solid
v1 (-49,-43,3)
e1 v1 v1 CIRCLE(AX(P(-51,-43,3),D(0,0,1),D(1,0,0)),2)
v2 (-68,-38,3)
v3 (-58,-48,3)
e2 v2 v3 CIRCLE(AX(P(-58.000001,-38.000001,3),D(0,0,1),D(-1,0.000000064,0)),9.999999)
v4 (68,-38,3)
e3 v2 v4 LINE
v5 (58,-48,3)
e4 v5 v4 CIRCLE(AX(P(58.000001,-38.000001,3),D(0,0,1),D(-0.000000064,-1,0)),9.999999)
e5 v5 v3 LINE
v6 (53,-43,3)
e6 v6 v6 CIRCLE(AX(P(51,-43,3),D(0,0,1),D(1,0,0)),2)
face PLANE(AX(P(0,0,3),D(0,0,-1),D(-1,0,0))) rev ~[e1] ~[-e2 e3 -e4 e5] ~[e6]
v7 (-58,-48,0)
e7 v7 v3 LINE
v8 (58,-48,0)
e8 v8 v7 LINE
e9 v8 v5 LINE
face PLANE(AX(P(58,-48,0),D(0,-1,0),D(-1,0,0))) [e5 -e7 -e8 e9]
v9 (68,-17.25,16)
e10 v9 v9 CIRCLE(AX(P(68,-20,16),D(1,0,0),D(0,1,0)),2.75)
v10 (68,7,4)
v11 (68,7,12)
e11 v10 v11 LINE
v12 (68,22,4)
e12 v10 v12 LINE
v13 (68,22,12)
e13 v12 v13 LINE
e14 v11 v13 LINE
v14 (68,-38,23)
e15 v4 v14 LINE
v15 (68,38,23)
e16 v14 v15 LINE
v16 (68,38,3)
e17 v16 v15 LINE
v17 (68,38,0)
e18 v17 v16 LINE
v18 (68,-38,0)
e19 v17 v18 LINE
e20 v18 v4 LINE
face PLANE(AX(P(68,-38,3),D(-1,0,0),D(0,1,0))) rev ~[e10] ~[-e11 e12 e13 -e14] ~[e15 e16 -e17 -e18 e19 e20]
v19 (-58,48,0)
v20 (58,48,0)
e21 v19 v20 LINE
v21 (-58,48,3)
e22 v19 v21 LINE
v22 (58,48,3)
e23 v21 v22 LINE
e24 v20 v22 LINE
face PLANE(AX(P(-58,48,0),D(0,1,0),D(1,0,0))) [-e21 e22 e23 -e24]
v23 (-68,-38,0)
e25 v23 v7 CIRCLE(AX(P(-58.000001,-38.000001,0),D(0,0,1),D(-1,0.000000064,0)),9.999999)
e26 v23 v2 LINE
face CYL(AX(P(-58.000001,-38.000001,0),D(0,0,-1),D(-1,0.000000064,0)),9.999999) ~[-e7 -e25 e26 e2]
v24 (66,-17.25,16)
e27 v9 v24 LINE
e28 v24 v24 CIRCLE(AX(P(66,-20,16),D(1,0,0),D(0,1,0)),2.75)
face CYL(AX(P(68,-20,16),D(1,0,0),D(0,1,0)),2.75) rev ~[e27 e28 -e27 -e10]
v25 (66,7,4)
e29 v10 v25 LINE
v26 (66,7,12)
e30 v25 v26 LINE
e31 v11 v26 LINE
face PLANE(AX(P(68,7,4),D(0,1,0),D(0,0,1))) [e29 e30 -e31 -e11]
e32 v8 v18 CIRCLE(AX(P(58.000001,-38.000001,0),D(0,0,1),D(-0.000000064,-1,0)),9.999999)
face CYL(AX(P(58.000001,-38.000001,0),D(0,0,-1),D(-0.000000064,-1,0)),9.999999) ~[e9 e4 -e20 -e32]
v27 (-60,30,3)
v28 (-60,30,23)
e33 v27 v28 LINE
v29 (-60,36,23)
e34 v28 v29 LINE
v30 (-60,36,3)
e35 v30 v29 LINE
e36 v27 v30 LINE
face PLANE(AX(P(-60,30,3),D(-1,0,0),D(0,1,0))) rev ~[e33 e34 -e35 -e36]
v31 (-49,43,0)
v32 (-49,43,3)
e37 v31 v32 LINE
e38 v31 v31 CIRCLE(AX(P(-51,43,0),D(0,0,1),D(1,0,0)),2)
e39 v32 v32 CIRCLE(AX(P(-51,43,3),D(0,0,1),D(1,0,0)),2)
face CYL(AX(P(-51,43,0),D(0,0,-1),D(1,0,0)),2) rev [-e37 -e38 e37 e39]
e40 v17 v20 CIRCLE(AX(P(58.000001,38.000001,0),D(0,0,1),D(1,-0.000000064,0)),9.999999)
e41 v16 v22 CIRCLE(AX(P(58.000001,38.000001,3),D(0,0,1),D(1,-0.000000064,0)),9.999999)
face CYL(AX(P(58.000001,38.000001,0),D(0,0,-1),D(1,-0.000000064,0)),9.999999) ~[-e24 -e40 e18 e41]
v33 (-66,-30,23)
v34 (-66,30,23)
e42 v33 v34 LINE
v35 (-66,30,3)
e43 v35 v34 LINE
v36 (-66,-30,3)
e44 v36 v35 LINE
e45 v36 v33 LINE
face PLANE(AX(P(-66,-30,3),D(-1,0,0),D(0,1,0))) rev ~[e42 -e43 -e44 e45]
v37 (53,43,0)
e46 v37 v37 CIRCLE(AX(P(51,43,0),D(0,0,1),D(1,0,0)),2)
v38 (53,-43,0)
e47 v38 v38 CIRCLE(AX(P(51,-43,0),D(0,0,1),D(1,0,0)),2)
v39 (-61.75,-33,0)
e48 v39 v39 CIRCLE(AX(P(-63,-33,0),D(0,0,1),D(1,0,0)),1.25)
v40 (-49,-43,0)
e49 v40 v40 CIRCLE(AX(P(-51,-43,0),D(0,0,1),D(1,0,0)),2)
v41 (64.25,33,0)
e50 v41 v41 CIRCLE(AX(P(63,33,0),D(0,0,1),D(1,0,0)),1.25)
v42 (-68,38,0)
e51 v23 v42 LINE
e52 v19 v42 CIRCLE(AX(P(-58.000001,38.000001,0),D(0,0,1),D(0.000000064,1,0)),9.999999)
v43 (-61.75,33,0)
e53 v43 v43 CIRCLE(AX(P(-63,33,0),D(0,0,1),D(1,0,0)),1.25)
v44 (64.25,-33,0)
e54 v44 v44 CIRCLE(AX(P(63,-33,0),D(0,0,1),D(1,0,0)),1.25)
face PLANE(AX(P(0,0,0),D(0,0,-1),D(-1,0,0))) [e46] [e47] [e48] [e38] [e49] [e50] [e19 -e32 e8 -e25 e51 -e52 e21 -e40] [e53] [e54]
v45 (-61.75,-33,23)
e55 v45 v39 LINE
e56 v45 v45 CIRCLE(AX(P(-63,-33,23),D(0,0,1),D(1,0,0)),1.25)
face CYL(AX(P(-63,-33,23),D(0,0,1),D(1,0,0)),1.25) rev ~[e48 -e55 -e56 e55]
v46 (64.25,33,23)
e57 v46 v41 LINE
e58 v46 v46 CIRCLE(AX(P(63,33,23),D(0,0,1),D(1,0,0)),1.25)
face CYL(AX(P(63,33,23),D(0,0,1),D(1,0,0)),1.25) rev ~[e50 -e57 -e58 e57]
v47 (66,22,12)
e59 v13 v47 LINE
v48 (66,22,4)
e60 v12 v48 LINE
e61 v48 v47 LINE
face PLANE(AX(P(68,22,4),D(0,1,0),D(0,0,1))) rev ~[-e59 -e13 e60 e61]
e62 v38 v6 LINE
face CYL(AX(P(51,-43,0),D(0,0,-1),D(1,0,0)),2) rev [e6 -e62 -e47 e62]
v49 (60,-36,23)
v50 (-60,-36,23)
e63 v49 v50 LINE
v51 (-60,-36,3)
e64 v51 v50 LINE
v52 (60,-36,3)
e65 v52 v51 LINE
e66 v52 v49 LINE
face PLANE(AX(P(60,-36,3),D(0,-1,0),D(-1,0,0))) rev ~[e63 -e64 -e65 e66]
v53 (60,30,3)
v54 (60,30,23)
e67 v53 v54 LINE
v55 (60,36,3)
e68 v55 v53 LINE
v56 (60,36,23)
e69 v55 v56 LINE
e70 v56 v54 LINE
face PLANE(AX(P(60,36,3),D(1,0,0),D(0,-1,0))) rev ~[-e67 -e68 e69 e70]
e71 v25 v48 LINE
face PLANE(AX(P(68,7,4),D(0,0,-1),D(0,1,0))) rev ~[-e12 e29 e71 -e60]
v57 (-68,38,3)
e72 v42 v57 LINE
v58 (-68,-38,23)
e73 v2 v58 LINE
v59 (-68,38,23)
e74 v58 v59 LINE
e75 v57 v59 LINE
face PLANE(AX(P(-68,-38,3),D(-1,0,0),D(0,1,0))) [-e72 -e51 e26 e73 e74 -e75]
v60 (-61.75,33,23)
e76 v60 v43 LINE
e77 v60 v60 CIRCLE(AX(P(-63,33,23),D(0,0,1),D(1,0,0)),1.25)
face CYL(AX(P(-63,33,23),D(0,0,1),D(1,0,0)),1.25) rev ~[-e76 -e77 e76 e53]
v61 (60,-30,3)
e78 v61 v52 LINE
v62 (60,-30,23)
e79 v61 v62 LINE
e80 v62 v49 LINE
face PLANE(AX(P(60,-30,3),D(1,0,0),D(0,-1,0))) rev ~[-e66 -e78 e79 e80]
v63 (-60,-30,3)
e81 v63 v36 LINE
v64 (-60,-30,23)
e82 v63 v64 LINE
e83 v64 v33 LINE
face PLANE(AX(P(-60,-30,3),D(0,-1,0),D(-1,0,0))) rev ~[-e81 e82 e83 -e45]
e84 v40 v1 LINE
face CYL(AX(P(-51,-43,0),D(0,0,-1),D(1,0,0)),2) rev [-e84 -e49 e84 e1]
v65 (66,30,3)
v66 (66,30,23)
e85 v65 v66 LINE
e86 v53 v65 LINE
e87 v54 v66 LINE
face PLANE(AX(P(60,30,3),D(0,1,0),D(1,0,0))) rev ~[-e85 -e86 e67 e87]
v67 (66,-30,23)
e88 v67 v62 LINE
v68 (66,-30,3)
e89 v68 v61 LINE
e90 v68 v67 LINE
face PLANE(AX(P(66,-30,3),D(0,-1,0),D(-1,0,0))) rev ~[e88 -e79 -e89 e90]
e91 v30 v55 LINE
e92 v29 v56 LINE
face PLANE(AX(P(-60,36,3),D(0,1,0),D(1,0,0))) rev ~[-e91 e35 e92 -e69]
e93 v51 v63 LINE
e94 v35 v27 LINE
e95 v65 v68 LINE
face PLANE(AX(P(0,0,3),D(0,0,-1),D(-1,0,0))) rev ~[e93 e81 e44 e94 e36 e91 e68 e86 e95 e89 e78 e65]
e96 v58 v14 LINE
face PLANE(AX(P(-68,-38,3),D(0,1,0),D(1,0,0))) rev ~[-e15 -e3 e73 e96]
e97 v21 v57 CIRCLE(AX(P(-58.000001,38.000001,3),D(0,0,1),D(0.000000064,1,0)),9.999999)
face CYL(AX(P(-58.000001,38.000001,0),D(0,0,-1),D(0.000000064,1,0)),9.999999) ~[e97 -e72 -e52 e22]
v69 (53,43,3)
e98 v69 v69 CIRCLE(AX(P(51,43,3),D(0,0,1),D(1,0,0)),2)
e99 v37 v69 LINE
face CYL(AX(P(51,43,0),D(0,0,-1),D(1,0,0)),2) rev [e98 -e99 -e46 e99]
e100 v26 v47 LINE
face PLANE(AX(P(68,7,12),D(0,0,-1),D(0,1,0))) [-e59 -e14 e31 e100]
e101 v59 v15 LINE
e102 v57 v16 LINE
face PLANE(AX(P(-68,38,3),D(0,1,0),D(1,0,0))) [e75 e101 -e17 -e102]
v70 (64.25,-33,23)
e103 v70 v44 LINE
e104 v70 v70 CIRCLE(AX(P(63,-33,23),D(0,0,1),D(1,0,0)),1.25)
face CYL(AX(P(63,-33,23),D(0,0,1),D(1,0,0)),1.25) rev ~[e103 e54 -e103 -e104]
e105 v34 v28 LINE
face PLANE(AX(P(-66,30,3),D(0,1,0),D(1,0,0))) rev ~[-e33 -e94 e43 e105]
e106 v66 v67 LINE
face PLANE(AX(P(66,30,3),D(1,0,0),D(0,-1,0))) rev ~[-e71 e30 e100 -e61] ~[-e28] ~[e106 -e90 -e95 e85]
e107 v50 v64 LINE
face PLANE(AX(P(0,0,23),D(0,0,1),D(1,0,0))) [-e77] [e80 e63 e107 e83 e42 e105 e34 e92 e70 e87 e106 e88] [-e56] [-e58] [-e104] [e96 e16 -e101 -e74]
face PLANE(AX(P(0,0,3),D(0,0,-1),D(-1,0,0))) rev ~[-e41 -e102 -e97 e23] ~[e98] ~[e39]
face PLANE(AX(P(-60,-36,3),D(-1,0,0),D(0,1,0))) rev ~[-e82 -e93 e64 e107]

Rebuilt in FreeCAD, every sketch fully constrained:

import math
import FreeCAD as App
import Part
import Sketcher

V = App.Vector


def add_polygon(sketch, points):
    """Adds a closed chain of lines whose ends are joined by coincident constraints."""
    first, n = sketch.GeometryCount, len(points)
    for a, b in zip(points, points[1:] + points[:1]):
        sketch.addGeometry(Part.LineSegment(App.Vector(*a, 0), App.Vector(*b, 0)), False)
    for i in range(n):
        sketch.addConstraint(Sketcher.Constraint("Coincident", first + i, 2, first + (i + 1) % n, 1))

doc = App.newDocument("Part")
body = doc.addObject("PartDesign::Body", "Body")

# Sketch on XY plane
sketch1 = body.newObject("Sketcher::SketchObject", "Sketch")
sketch1.AttachmentSupport = (doc.getObject("XY_Plane"), [""])
sketch1.MapMode = "FlatFace"
sketch1.addGeometry([
    Part.LineSegment(V(58, 48, 0), V(-58, 48, 0)),  # 0
    Part.ArcOfCircle(Part.Circle(V(-58.000001, 38.000001, 0), V(0, 0, 1), 9.999999), math.radians(89.999996), math.radians(180.000004)),  # 1
    Part.LineSegment(V(-68, 38, 0), V(-68, -38, 0)),  # 2
    Part.ArcOfCircle(Part.Circle(V(-58.000001, -38.000001, 0), V(0, 0, 1), 9.999999), math.radians(179.999996), math.radians(270.000004)),  # 3
    Part.LineSegment(V(-58, -48, 0), V(58, -48, 0)),  # 4
    Part.ArcOfCircle(Part.Circle(V(58.000001, -38.000001, 0), V(0, 0, 1), 9.999999), math.radians(-90.000004), math.radians(0.000004)),  # 5
    Part.LineSegment(V(68, -38, 0), V(68, 38, 0)),  # 6
    Part.ArcOfCircle(Part.Circle(V(58.000001, 38.000001, 0), V(0, 0, 1), 9.999999), math.radians(-0.000004), math.radians(90.000004)),  # 7
    Part.Circle(V(51, -43, 0), V(0, 0, 1), 2),  # 8
    Part.Circle(V(-51, -43, 0), V(0, 0, 1), 2),  # 9
    Part.Circle(V(51, 43, 0), V(0, 0, 1), 2),  # 10
    Part.Circle(V(-51, 43, 0), V(0, 0, 1), 2),  # 11
], False)
sketch1.addConstraint([
    Sketcher.Constraint("Tangent", 0, 2, 1, 1),
    Sketcher.Constraint("Tangent", 1, 2, 2, 1),
    Sketcher.Constraint("Tangent", 2, 2, 3, 1),
    Sketcher.Constraint("Tangent", 3, 2, 4, 1),
    Sketcher.Constraint("Tangent", 4, 2, 5, 1),
    Sketcher.Constraint("Tangent", 5, 2, 6, 1),
    Sketcher.Constraint("Tangent", 6, 2, 7, 1),
    Sketcher.Constraint("Tangent", 7, 2, 0, 1),
    Sketcher.Constraint("Horizontal", 0),
    Sketcher.Constraint("Vertical", 2),
    Sketcher.Constraint("Horizontal", 4),
    Sketcher.Constraint("Vertical", 6),
    Sketcher.Constraint("Equal", 1, 3),
    Sketcher.Constraint("Equal", 3, 5),
    Sketcher.Constraint("Equal", 5, 7),
    Sketcher.Constraint("Equal", 8, 9),
    Sketcher.Constraint("Equal", 9, 10),
    Sketcher.Constraint("Equal", 10, 11),
    Sketcher.Constraint("Symmetric", 1, 3, 5, 3, -1, 1),
    Sketcher.Constraint("Symmetric", 9, 3, 10, 3, -1, 1),
    Sketcher.Constraint("Symmetric", 8, 3, 11, 3, -1, 1),
    Sketcher.Constraint("Symmetric", 8, 3, 9, 3, -2),
    Sketcher.Constraint("Diameter", 8, 4.0),
    Sketcher.Constraint("Radius", 1, 9.999999),
    Sketcher.Constraint("DistanceX", 0, 2, 0, 1, 116.0),
    Sketcher.Constraint("DistanceY", 2, 2, 2, 1, 76.0),
    Sketcher.Constraint("DistanceX", -1, 1, 8, 3, 51.0),
    Sketcher.Constraint("DistanceY", 8, 3, -1, 1, 43.0),
])
pad1 = body.newObject("PartDesign::Pad", "Pad")
pad1.Profile = sketch1
pad1.Length = 3

# Sketch on XY plane
sketch2 = body.newObject("Sketcher::SketchObject", "Sketch001")
sketch2.AttachmentSupport = (doc.getObject("XY_Plane"), [""])
sketch2.MapMode = "FlatFace"
sketch2.AttachmentOffset = App.Placement(V(0, 0, 3), App.Rotation())
add_polygon(sketch2, [(-68, 38), (-68, -38), (68, -38), (68, 38)])  # lines 0-3
add_polygon(sketch2, [(-60, 30), (-60, 36), (60, 36), (60, 30), (66, 30), (66, -30), (60, -30), (60, -36), (-60, -36), (-60, -30), (-66, -30), (-66, 30)])  # lines 4-15
sketch2.addConstraint([
    Sketcher.Constraint("Vertical", 0),
    Sketcher.Constraint("Horizontal", 1),
    Sketcher.Constraint("Vertical", 2),
    Sketcher.Constraint("Horizontal", 3),
    Sketcher.Constraint("Vertical", 4),
    Sketcher.Constraint("Horizontal", 5),
    Sketcher.Constraint("Vertical", 6),
    Sketcher.Constraint("Horizontal", 7),
    Sketcher.Constraint("Vertical", 8),
    Sketcher.Constraint("Horizontal", 9),
    Sketcher.Constraint("Vertical", 10),
    Sketcher.Constraint("Horizontal", 11),
    Sketcher.Constraint("Vertical", 12),
    Sketcher.Constraint("Horizontal", 13),
    Sketcher.Constraint("Vertical", 14),
    Sketcher.Constraint("Horizontal", 15),
    Sketcher.Constraint("Symmetric", 0, 2, 2, 2, -1, 1),
    Sketcher.Constraint("Symmetric", 4, 2, 10, 2, -1, 1),
    Sketcher.Constraint("Symmetric", 6, 2, 12, 2, -1, 1),
    Sketcher.Constraint("Symmetric", 8, 2, 14, 2, -1, 1),
    Sketcher.Constraint("Symmetric", 9, 2, 12, 2, -2),
    Sketcher.Constraint("Equal", 15, 4),
    Sketcher.Constraint("DistanceX", 1, 1, 1, 2, 136.0),
    Sketcher.Constraint("DistanceX", 5, 1, 5, 2, 120.0),
    Sketcher.Constraint("DistanceX", 7, 1, 7, 2, 6.0),
    Sketcher.Constraint("DistanceY", 0, 2, 0, 1, 76.0),
    Sketcher.Constraint("DistanceY", 8, 2, 8, 1, 60.0),
])
pad2 = body.newObject("PartDesign::Pad", "Pad001")
pad2.Profile = sketch2
pad2.Length = 20

# Sketch on XY plane
sketch3 = body.newObject("Sketcher::SketchObject", "Sketch002")
sketch3.AttachmentSupport = (doc.getObject("XY_Plane"), [""])
sketch3.MapMode = "FlatFace"
sketch3.AttachmentOffset = App.Placement(V(0, 0, 23), App.Rotation())
sketch3.addGeometry([
    Part.Circle(V(63, -33, 0), V(0, 0, 1), 1.25),
    Part.Circle(V(-63, -33, 0), V(0, 0, 1), 1.25),
    Part.Circle(V(-63, 33, 0), V(0, 0, 1), 1.25),
    Part.Circle(V(63, 33, 0), V(0, 0, 1), 1.25),
], False)
sketch3.addConstraint([
    Sketcher.Constraint("Equal", 0, 1),
    Sketcher.Constraint("Equal", 1, 2),
    Sketcher.Constraint("Equal", 2, 3),
    Sketcher.Constraint("Symmetric", 0, 3, 2, 3, -1, 1),
    Sketcher.Constraint("Symmetric", 1, 3, 3, 3, -1, 1),
    Sketcher.Constraint("Symmetric", 0, 3, 1, 3, -2),
    Sketcher.Constraint("Diameter", 0, 2.5),
    Sketcher.Constraint("DistanceX", -1, 1, 0, 3, 63.0),
    Sketcher.Constraint("DistanceY", 0, 3, -1, 1, 33.0),
])
pocket1 = body.newObject("PartDesign::Pocket", "Pocket")
pocket1.Profile = sketch3
pocket1.Length = 23

# Sketch on YZ plane
sketch4 = body.newObject("Sketcher::SketchObject", "Sketch003")
sketch4.AttachmentSupport = (doc.getObject("YZ_Plane"), [""])
sketch4.MapMode = "FlatFace"
sketch4.AttachmentOffset = App.Placement(V(0, 0, 68), App.Rotation())
sketch4.addGeometry(Part.Circle(V(-20, 16, 0), V(0, 0, 1), 2.75), False)  # 0
add_polygon(sketch4, [(7, 12), (7, 4), (22, 4), (22, 12)])  # lines 1-4
sketch4.addConstraint([
    Sketcher.Constraint("Vertical", 1),
    Sketcher.Constraint("Horizontal", 2),
    Sketcher.Constraint("Vertical", 3),
    Sketcher.Constraint("Horizontal", 4),
    Sketcher.Constraint("Diameter", 0, 5.5),
    Sketcher.Constraint("DistanceX", 2, 1, 2, 2, 15.0),
    Sketcher.Constraint("DistanceY", 1, 2, 1, 1, 8.0),
    Sketcher.Constraint("DistanceX", 0, 3, -1, 1, 20.0),
    Sketcher.Constraint("DistanceY", -1, 1, 0, 3, 16.0),
    Sketcher.Constraint("DistanceX", -1, 1, 1, 2, 7.0),
    Sketcher.Constraint("DistanceY", -1, 1, 1, 2, 4.0),
])
pocket2 = body.newObject("PartDesign::Pocket", "Pocket001")
pocket2.Profile = sketch4
pocket2.Length = 5

doc.recompute()
